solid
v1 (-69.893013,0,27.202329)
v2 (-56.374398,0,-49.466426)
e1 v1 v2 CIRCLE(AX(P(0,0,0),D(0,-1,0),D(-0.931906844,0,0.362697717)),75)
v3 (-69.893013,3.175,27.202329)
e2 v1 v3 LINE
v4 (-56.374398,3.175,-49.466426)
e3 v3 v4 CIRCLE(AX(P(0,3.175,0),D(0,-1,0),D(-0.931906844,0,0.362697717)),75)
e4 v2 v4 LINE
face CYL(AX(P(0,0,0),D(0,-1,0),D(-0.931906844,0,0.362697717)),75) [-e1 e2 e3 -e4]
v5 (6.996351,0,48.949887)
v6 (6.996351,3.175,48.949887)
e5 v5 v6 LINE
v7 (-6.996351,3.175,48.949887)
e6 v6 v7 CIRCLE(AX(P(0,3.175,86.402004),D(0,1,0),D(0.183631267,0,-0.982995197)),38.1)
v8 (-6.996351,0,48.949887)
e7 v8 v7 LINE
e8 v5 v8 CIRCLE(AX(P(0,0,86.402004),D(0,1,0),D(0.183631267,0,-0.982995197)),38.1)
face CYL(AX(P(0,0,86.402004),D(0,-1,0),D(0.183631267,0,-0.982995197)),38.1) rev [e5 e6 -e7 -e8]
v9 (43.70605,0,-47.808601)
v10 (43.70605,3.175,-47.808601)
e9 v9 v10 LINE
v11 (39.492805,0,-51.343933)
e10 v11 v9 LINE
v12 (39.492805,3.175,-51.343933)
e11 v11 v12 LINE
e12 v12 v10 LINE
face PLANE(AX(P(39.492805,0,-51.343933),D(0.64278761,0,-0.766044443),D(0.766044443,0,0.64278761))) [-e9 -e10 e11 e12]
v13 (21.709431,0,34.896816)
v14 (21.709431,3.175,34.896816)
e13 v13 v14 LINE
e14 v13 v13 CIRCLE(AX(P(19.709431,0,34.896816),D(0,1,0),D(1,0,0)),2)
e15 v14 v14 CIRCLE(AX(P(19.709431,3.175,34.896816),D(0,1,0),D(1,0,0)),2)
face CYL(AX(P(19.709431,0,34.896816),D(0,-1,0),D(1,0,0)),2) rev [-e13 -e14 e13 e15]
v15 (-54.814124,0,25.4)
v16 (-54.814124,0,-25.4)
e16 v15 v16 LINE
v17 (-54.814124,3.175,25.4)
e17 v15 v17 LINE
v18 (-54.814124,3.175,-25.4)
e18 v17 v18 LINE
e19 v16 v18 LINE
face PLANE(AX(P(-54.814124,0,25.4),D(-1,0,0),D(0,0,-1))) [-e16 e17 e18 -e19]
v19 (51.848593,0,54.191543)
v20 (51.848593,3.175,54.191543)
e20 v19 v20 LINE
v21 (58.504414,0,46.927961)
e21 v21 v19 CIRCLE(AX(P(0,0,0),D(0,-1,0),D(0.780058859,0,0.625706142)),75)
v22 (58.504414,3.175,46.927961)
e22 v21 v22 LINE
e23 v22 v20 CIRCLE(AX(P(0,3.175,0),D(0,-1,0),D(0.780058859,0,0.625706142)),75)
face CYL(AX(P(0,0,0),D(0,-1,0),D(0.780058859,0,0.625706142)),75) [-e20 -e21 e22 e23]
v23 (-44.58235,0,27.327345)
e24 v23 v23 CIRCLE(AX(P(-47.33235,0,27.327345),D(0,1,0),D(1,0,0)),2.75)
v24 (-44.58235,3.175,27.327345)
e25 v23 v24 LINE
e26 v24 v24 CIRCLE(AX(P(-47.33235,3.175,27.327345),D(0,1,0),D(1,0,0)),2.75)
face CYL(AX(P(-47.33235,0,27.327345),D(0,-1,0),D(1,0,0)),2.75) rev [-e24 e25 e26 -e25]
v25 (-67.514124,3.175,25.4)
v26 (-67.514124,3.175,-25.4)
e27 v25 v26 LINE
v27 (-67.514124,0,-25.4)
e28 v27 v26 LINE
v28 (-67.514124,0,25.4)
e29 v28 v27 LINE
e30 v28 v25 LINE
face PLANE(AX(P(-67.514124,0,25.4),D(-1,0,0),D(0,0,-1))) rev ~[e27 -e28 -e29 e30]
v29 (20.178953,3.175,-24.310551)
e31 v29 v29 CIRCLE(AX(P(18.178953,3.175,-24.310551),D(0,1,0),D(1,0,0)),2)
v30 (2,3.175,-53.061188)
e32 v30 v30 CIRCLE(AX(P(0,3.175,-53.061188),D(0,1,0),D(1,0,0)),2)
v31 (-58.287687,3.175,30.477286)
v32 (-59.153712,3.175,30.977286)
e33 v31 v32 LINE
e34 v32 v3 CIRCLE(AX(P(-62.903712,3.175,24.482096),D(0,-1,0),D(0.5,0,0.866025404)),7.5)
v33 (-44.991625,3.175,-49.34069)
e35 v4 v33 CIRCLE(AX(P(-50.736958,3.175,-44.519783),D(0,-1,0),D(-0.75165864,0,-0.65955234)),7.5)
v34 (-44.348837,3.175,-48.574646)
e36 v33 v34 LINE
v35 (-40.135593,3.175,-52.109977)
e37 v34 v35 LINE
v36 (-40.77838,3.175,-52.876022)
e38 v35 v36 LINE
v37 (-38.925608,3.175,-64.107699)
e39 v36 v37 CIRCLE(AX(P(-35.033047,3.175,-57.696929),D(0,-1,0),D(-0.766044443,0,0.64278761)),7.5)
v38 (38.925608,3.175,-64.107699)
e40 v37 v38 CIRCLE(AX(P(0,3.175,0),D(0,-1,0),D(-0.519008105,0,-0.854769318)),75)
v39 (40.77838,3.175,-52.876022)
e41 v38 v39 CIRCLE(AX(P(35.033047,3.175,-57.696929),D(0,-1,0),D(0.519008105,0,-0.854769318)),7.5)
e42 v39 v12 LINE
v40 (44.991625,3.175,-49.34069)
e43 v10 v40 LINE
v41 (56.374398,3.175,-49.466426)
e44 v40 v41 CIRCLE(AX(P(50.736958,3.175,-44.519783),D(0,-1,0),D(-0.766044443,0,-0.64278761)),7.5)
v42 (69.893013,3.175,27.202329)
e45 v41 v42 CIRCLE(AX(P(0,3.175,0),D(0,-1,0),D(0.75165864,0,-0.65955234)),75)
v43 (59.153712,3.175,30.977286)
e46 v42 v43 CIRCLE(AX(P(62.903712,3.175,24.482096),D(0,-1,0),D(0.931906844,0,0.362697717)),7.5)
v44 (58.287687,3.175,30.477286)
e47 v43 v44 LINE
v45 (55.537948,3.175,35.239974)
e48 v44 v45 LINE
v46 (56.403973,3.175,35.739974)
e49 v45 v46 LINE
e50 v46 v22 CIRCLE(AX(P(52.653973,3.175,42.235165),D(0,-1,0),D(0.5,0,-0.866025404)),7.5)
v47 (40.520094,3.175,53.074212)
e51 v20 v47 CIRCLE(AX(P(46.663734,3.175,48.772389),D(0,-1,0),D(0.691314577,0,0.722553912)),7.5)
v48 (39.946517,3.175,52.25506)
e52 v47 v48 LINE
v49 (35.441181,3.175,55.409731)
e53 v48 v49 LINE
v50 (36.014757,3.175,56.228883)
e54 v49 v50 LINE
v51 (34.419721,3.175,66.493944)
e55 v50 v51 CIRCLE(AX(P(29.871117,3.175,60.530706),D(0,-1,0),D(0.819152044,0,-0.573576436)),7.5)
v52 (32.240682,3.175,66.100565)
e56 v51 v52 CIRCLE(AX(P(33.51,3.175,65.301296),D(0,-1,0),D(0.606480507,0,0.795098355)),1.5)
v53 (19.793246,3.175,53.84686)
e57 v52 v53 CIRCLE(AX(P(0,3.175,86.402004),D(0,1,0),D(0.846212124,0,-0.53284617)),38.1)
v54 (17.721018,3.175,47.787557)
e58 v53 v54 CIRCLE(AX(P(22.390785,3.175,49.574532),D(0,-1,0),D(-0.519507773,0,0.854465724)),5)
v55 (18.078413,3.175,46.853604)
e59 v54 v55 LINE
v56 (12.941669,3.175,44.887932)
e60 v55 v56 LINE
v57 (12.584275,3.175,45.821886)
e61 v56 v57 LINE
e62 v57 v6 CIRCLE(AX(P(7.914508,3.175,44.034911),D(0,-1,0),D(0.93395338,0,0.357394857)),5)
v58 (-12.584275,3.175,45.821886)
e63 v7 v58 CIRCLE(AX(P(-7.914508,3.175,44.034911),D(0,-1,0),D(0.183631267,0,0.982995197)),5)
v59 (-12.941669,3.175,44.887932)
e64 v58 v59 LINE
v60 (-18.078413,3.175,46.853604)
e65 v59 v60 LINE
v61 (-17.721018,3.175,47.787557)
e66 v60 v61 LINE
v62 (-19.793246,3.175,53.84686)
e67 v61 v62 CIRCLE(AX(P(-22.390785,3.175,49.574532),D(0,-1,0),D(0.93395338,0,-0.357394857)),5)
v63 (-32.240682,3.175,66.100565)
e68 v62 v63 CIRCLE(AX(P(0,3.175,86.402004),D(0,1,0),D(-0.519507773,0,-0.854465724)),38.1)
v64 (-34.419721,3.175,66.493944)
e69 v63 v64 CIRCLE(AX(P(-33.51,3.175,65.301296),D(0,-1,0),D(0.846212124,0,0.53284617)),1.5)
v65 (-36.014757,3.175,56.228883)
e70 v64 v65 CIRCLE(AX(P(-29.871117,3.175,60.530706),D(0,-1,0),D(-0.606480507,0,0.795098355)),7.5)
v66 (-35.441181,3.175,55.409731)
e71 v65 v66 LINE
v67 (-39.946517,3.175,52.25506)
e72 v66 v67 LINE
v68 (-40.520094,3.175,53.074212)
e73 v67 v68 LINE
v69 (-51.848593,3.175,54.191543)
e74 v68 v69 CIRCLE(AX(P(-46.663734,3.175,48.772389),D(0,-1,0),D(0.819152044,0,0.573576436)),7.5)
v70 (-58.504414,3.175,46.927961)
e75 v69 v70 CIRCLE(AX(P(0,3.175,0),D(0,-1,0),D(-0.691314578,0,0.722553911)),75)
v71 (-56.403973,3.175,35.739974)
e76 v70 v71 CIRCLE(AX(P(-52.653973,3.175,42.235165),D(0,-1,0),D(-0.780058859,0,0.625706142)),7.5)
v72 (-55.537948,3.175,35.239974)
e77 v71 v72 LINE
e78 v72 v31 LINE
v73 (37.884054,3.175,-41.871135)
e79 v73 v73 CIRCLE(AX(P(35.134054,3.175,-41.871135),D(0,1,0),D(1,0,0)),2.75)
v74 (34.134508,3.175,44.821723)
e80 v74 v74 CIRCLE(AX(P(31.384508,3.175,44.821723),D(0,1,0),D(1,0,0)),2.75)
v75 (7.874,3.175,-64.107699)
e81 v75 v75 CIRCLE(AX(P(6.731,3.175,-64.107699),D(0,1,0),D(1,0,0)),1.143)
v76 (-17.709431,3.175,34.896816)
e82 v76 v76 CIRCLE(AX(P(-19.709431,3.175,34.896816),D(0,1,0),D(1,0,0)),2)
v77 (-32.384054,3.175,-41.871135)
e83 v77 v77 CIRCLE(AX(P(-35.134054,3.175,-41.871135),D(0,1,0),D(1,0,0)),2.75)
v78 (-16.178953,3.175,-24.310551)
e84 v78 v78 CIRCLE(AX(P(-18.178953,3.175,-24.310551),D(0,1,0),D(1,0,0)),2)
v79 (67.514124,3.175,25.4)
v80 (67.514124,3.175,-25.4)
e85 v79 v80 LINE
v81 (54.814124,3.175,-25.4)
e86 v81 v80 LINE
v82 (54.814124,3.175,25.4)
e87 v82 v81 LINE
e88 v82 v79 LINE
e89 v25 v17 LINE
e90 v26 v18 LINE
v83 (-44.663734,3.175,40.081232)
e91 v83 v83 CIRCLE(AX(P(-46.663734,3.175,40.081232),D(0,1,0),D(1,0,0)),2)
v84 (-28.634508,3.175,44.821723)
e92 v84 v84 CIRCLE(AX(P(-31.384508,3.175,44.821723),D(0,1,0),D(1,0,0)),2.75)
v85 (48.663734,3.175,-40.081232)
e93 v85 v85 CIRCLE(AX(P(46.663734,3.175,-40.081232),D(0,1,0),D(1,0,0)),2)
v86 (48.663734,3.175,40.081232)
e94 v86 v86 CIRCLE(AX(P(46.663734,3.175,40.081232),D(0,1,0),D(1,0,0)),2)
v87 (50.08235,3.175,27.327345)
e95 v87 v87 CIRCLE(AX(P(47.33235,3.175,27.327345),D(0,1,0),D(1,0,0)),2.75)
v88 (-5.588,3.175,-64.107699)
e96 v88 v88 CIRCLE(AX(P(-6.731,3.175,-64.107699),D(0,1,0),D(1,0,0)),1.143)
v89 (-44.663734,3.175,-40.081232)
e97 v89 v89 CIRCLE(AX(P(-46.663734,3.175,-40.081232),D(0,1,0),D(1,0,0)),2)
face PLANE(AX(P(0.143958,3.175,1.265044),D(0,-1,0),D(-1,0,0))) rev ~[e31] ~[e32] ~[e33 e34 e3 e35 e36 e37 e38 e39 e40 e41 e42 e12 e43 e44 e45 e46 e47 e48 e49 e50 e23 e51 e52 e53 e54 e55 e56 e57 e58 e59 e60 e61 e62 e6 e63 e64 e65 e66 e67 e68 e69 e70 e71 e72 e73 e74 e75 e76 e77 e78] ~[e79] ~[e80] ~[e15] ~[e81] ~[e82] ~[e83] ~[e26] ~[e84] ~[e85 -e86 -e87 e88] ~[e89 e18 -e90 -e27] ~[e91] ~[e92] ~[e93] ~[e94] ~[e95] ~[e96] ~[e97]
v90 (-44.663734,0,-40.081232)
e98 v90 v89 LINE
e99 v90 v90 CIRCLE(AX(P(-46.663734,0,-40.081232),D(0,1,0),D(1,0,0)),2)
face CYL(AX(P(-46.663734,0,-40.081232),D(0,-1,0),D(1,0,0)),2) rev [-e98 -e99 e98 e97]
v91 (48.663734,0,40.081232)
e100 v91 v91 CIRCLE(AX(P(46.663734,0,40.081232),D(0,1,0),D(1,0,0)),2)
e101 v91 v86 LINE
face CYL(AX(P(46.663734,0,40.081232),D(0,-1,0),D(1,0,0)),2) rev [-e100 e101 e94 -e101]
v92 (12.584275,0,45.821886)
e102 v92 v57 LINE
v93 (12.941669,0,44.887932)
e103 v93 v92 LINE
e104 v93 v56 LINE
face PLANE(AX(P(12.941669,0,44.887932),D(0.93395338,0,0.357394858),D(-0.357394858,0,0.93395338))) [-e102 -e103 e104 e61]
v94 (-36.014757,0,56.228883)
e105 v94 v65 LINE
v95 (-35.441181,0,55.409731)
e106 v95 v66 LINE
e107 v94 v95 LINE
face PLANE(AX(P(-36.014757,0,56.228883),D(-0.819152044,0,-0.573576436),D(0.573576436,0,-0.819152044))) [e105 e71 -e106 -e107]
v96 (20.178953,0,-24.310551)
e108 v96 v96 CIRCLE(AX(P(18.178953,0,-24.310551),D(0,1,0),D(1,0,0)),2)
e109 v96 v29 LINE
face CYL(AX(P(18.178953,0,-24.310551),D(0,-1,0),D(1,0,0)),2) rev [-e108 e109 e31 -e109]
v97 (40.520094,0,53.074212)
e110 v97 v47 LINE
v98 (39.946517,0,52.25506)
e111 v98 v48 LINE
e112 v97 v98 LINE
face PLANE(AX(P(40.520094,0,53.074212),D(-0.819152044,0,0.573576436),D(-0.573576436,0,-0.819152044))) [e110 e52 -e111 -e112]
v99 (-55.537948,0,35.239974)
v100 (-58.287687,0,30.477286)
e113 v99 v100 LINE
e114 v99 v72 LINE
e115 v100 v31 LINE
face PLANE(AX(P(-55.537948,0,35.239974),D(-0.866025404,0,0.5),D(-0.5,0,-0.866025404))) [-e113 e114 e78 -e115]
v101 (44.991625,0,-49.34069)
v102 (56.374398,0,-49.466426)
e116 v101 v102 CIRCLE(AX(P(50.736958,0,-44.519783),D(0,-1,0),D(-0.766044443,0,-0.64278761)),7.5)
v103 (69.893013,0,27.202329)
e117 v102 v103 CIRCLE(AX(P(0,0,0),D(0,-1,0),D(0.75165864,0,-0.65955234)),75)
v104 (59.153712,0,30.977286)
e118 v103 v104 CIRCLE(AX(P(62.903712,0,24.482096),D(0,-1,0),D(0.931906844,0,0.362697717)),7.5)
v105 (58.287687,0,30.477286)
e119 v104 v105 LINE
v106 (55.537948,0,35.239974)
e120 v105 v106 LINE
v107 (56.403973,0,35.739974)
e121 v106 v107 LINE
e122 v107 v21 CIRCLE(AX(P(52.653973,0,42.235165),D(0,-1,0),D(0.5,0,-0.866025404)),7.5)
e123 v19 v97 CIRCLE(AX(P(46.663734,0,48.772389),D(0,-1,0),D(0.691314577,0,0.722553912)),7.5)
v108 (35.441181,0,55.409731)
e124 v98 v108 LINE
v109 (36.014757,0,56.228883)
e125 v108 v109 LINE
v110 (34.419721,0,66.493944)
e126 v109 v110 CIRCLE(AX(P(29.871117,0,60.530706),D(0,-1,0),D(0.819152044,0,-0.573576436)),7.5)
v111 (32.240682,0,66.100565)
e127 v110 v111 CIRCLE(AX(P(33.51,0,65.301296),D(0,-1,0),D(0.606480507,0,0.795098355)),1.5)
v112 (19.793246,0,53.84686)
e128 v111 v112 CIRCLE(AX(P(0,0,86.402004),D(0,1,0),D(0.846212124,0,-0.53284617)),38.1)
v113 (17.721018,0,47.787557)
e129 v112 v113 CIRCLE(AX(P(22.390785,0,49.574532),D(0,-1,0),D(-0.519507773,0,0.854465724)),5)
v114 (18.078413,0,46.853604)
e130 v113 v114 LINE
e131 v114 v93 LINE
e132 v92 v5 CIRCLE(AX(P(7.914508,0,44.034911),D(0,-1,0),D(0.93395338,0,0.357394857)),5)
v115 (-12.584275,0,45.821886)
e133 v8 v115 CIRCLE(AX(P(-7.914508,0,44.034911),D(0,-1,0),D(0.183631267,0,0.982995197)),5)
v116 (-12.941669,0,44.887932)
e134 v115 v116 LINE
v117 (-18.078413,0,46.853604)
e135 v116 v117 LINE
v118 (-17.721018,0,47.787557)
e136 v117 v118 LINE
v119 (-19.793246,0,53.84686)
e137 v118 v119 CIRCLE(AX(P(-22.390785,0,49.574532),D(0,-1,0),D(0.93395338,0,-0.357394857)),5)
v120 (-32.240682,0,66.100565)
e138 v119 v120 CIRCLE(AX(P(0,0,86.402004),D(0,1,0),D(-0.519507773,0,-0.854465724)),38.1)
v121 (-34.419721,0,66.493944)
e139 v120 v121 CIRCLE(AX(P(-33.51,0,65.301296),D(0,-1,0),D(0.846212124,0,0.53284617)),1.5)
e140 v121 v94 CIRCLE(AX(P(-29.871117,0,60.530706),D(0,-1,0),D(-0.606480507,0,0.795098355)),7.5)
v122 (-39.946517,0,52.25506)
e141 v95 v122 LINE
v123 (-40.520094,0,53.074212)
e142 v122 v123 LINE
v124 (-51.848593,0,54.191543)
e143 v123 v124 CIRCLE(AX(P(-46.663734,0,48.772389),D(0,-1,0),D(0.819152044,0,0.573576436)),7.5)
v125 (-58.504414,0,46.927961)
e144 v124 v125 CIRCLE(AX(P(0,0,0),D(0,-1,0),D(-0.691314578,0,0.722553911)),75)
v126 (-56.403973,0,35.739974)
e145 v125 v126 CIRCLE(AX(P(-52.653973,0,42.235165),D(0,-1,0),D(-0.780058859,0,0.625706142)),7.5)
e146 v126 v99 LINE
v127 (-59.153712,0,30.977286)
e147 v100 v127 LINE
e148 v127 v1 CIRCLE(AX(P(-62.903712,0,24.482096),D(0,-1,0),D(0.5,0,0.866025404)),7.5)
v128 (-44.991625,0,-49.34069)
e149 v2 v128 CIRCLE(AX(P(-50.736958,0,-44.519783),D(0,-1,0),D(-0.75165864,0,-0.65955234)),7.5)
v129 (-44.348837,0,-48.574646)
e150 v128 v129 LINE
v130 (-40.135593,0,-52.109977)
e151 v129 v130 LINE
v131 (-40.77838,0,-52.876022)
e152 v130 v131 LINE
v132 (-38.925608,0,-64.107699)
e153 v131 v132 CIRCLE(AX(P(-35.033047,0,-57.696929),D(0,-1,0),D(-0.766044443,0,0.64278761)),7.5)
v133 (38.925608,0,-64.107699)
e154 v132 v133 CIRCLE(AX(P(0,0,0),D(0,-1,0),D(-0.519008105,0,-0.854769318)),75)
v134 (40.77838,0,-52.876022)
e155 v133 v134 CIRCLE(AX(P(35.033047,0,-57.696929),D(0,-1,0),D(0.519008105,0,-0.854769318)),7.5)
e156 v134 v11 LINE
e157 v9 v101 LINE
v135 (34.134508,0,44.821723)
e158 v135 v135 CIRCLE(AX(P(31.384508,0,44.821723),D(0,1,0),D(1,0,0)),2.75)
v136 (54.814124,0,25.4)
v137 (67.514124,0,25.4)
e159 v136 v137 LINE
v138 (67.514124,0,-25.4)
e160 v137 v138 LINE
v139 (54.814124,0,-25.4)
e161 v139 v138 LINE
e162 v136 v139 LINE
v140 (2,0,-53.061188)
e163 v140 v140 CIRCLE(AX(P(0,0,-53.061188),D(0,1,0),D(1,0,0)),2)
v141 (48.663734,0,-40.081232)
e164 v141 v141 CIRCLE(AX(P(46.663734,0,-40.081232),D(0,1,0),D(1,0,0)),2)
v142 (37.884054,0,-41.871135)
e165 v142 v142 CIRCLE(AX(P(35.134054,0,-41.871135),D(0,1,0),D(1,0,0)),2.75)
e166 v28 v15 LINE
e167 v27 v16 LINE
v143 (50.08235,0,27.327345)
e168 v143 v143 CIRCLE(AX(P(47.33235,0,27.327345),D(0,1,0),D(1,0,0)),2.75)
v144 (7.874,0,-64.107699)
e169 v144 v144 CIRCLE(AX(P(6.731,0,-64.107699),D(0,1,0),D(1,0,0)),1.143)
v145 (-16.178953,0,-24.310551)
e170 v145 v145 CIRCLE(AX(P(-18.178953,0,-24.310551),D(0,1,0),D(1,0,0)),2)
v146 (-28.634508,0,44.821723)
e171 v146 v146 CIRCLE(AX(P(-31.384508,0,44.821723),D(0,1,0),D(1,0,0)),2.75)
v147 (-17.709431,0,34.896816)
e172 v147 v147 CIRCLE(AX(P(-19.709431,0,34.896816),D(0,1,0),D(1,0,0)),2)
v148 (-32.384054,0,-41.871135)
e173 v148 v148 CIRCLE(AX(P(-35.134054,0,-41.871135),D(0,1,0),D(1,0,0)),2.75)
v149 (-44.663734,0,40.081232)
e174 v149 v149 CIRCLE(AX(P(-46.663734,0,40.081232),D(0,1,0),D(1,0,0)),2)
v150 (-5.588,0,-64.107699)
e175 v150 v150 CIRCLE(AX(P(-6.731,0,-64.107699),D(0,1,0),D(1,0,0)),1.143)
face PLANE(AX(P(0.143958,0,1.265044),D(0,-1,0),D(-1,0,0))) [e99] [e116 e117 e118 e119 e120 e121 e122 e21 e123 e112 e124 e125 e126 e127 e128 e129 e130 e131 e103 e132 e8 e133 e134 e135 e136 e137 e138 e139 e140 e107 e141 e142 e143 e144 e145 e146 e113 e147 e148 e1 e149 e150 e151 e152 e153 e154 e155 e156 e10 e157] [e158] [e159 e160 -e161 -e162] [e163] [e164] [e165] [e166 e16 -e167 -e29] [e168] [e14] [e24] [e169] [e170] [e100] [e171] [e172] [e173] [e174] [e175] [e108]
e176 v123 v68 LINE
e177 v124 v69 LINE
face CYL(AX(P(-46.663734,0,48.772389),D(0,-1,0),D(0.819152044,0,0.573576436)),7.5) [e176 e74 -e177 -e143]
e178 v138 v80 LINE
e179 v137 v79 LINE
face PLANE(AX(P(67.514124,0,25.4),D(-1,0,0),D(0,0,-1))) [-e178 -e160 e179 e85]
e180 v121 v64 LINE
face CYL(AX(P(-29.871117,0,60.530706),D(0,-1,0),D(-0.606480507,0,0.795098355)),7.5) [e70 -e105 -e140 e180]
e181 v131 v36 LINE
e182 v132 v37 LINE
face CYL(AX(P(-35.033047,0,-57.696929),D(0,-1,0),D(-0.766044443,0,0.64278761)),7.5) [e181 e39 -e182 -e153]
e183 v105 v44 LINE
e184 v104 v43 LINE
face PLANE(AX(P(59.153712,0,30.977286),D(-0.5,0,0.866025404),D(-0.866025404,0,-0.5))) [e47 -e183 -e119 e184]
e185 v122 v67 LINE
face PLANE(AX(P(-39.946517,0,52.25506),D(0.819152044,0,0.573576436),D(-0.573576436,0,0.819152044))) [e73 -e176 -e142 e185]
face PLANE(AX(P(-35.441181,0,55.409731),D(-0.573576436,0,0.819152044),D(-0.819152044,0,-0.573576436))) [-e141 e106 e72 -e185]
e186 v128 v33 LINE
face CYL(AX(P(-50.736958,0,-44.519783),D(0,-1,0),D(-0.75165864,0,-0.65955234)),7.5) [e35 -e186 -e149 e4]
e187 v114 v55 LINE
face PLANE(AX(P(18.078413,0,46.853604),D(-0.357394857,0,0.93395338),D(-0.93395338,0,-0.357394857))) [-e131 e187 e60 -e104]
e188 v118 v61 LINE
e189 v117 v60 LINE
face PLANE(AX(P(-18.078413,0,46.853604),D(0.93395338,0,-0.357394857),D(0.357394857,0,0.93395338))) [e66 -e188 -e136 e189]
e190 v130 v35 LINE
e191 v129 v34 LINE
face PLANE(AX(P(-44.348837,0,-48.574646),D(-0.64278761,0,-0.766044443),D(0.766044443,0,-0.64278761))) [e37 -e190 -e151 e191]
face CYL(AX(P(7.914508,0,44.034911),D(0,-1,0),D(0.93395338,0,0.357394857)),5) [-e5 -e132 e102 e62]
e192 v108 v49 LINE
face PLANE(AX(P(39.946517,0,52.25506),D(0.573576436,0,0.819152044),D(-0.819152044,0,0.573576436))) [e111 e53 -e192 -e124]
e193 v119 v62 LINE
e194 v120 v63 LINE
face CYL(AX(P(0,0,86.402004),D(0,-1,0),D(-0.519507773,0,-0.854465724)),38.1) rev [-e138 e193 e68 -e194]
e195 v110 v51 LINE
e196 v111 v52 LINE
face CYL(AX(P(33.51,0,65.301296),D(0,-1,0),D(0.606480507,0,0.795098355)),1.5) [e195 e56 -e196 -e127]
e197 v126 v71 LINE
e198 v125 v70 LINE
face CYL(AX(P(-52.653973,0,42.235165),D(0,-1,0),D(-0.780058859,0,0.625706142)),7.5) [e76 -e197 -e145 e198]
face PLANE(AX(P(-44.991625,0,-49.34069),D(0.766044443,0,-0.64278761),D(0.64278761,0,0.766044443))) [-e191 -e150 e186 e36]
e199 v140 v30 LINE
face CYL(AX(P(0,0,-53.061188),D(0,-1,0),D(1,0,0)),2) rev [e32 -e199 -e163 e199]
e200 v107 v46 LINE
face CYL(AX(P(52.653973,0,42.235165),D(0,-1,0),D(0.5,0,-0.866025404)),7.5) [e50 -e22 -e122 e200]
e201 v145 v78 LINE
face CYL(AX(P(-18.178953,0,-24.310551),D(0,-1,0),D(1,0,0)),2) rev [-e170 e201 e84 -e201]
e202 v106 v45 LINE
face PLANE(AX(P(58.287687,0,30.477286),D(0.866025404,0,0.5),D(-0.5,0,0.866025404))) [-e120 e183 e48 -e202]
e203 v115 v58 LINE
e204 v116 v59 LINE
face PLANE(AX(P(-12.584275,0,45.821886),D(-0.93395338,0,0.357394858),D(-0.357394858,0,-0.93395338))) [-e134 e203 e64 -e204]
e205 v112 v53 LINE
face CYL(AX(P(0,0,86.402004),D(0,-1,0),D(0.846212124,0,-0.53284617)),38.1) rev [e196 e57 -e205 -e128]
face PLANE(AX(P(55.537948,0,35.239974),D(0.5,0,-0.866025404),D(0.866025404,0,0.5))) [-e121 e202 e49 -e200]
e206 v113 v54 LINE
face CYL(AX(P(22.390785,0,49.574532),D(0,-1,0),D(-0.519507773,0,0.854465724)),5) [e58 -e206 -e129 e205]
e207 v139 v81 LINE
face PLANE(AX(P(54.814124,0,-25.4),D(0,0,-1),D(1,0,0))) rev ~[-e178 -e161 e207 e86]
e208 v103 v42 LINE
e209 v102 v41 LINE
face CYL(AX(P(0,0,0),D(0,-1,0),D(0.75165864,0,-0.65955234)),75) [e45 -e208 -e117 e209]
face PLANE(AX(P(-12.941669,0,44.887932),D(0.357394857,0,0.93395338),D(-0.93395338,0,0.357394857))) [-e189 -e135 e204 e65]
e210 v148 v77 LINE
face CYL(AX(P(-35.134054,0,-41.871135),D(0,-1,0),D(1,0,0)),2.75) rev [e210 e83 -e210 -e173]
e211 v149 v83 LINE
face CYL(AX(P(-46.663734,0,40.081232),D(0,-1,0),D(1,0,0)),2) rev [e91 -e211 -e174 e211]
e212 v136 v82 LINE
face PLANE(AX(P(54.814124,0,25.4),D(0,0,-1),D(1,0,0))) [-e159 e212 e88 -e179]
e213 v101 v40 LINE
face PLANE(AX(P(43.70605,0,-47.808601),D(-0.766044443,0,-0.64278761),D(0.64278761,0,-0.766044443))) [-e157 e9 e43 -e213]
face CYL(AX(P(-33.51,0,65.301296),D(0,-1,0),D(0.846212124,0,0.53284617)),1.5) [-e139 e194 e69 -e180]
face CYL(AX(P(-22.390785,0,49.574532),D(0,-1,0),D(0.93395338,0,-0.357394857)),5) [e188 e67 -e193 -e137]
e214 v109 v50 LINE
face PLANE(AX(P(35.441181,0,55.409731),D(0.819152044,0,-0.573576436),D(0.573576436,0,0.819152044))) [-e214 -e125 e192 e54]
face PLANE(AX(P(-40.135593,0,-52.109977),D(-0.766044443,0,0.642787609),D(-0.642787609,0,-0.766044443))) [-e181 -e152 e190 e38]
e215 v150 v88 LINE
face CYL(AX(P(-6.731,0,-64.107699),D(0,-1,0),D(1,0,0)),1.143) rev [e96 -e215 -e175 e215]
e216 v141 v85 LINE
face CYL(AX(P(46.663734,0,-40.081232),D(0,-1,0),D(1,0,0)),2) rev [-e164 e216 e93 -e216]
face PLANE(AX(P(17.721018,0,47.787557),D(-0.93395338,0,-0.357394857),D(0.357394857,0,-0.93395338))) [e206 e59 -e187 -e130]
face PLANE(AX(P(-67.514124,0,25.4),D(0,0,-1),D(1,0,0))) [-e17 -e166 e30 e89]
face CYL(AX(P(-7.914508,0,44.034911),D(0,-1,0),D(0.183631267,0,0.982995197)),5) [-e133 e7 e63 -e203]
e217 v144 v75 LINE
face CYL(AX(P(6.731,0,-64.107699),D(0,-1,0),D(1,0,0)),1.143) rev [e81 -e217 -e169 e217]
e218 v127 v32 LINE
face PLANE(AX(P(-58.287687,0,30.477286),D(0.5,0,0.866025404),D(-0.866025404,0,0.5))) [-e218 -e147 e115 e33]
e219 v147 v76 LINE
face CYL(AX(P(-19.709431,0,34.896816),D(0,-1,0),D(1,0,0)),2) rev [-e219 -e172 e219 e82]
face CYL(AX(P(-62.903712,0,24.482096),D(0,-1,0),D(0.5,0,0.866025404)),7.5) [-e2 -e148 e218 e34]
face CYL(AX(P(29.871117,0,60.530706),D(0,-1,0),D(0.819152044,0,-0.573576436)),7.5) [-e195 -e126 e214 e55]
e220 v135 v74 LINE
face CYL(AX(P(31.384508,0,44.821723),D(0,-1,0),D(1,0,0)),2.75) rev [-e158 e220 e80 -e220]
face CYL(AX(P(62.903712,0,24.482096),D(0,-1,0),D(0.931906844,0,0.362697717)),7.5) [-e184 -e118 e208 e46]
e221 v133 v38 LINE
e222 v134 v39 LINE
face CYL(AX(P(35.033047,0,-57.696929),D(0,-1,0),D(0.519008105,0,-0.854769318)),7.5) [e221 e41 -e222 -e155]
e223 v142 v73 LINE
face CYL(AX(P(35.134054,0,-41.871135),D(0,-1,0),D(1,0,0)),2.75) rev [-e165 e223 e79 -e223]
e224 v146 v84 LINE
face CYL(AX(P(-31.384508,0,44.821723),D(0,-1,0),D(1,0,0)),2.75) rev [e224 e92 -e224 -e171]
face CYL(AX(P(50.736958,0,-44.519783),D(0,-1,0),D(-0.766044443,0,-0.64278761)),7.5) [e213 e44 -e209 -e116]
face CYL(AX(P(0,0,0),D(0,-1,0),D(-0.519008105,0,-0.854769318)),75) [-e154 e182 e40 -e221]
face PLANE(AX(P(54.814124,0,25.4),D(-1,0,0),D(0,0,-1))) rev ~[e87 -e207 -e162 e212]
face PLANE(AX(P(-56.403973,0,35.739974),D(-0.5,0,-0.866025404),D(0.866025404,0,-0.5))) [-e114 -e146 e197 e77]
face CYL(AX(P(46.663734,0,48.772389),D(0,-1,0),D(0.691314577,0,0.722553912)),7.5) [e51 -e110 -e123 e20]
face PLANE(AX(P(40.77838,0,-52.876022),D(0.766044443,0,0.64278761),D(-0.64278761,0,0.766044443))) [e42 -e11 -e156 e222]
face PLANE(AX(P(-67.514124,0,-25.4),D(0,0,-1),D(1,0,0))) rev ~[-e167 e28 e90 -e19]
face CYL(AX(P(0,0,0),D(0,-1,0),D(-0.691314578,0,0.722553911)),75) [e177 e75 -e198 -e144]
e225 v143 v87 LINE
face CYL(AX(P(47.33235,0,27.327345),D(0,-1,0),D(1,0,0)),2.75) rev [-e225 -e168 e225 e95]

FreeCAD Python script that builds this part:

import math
import FreeCAD as App
import Part
import Sketcher

V = App.Vector
Q = App.Units.Quantity

doc = App.newDocument("Part")
body = doc.addObject("PartDesign::Body", "Body")

sketch1 = body.newObject("Sketcher::SketchObject", "Sketch")
sketch1.AttachmentSupport = (doc.getObject("XZ_Plane"), [""])
sketch1.MapMode = "FlatFace"
sketch1.addGeometry(Part.LineSegment(V(-35.4, 55.4, 0), V(-36, 56.2, 0)), False)
sketch1.addGeometry(Part.ArcOfCircle(Part.Circle(V(-29.9, 60.5, 0), V(0, 0, 1), 7.5), math.radians(127), math.radians(215)), False)
sketch1.addGeometry(Part.ArcOfCircle(Part.Circle(V(-33.5, 65.3, 0), V(0, 0, 1), 1.5), math.radians(32), math.radians(127)), False)
sketch1.addGeometry(Part.ArcOfCircle(Part.Circle(V(0, 86.4, 0), V(0, 0, 1), 38.1), math.radians(-148), math.radians(-121)), False)
sketch1.addGeometry(Part.ArcOfCircle(Part.Circle(V(-22.4, 49.6, 0), V(0, 0, 1), 5), math.radians(-21), math.radians(59)), False)
sketch1.addGeometry(Part.LineSegment(V(-17.7, 47.8, 0), V(-18.1, 46.9, 0)), False)
sketch1.addGeometry(Part.LineSegment(V(-18.1, 46.9, 0), V(-12.9, 44.9, 0)), False)
sketch1.addGeometry(Part.LineSegment(V(-12.9, 44.9, 0), V(-12.6, 45.8, 0)), False)
sketch1.addGeometry(Part.ArcOfCircle(Part.Circle(V(-7.9, 44, 0), V(0, 0, 1), 5), math.radians(79), math.radians(159)), False)
sketch1.addGeometry(Part.ArcOfCircle(Part.Circle(V(0, 86.4, 0), V(0, 0, 1), 38.1), math.radians(-101), math.radians(-79)), False)
sketch1.addGeometry(Part.ArcOfCircle(Part.Circle(V(7.9, 44, 0), V(0, 0, 1), 5), math.radians(21), math.radians(101)), False)
sketch1.addGeometry(Part.LineSegment(V(12.6, 45.8, 0), V(12.9, 44.9, 0)), False)
sketch1.addGeometry(Part.LineSegment(V(12.9, 44.9, 0), V(18.1, 46.9, 0)), False)
sketch1.addGeometry(Part.LineSegment(V(18.1, 46.9, 0), V(17.7, 47.8, 0)), False)
sketch1.addGeometry(Part.ArcOfCircle(Part.Circle(V(22.4, 49.6, 0), V(0, 0, 1), 5), math.radians(121), math.radians(201)), False)
sketch1.addGeometry(Part.ArcOfCircle(Part.Circle(V(0, 86.4, 0), V(0, 0, 1), 38.1), math.radians(-59), math.radians(-32)), False)
sketch1.addGeometry(Part.ArcOfCircle(Part.Circle(V(33.5, 65.3, 0), V(0, 0, 1), 1.5), math.radians(53), math.radians(148)), False)
sketch1.addGeometry(Part.ArcOfCircle(Part.Circle(V(29.9, 60.5, 0), V(0, 0, 1), 7.5), math.radians(-35), math.radians(53)), False)
sketch1.addGeometry(Part.LineSegment(V(36, 56.2, 0), V(35.4, 55.4, 0)), False)
sketch1.addGeometry(Part.LineSegment(V(35.4, 55.4, 0), V(39.9, 52.3, 0)), False)
sketch1.addGeometry(Part.LineSegment(V(39.9, 52.3, 0), V(40.5, 53.1, 0)), False)
sketch1.addGeometry(Part.ArcOfCircle(Part.Circle(V(46.7, 48.8, 0), V(0, 0, 1), 7.5), math.radians(46), math.radians(145)), False)
sketch1.addGeometry(Part.ArcOfCircle(Part.Circle(V(0, 0, 0), V(0, 0, 1), 75), math.radians(38.73), math.radians(46.27)), False)
sketch1.addGeometry(Part.ArcOfCircle(Part.Circle(V(52.7, 42.2, 0), V(0, 0, 1), 7.5), math.radians(-60), math.radians(39)), False)
sketch1.addGeometry(Part.LineSegment(V(56.4, 35.7, 0), V(55.5, 35.2, 0)), False)
sketch1.addGeometry(Part.LineSegment(V(55.5, 35.2, 0), V(58.3, 30.5, 0)), False)
sketch1.addGeometry(Part.LineSegment(V(58.3, 30.5, 0), V(59.2, 31, 0)), False)
sketch1.addGeometry(Part.ArcOfCircle(Part.Circle(V(62.9, 24.5, 0), V(0, 0, 1), 7.5), math.radians(21), math.radians(120)), False)
sketch1.addGeometry(Part.ArcOfCircle(Part.Circle(V(0, 0, 0), V(0, 0, 1), 75), math.radians(-41), math.radians(21)), False)
sketch1.addGeometry(Part.ArcOfCircle(Part.Circle(V(50.7, -44.5, 0), V(0, 0, 1), 7.5), math.radians(-140), math.radians(-41)), False)
sketch1.addGeometry(Part.LineSegment(V(45, -49.3, 0), V(43.7, -47.8, 0)), False)
sketch1.addGeometry(Part.LineSegment(V(43.7, -47.8, 0), V(39.5, -51.3, 0)), False)
sketch1.addGeometry(Part.LineSegment(V(39.5, -51.3, 0), V(40.8, -52.9, 0)), False)
sketch1.addGeometry(Part.ArcOfCircle(Part.Circle(V(35, -57.7, 0), V(0, 0, 1), 7.5), math.radians(-59), math.radians(40)), False)
sketch1.addGeometry(Part.ArcOfCircle(Part.Circle(V(0, 0, 0), V(0, 0, 1), 75), math.radians(-121), math.radians(-59)), False)
sketch1.addGeometry(Part.ArcOfCircle(Part.Circle(V(-35, -57.7, 0), V(0, 0, 1), 7.5), math.radians(140), math.radians(239)), False)
sketch1.addGeometry(Part.LineSegment(V(-40.8, -52.9, 0), V(-40.1, -52.1, 0)), False)
sketch1.addGeometry(Part.LineSegment(V(-40.1, -52.1, 0), V(-44.3, -48.6, 0)), False)
sketch1.addGeometry(Part.LineSegment(V(-44.3, -48.6, 0), V(-45, -49.3, 0)), False)
sketch1.addGeometry(Part.ArcOfCircle(Part.Circle(V(-50.7, -44.5, 0), V(0, 0, 1), 7.5), math.radians(-139), math.radians(-40)), False)
sketch1.addGeometry(Part.ArcOfCircle(Part.Circle(V(0, 0, 0), V(0, 0, 1), 75), math.radians(159), math.radians(221)), False)
sketch1.addGeometry(Part.ArcOfCircle(Part.Circle(V(-62.9, 24.5, 0), V(0, 0, 1), 7.5), math.radians(60), math.radians(159)), False)
sketch1.addGeometry(Part.LineSegment(V(-59.2, 31, 0), V(-58.3, 30.5, 0)), False)
sketch1.addGeometry(Part.LineSegment(V(-58.3, 30.5, 0), V(-55.5, 35.2, 0)), False)
sketch1.addGeometry(Part.LineSegment(V(-55.5, 35.2, 0), V(-56.4, 35.7, 0)), False)
sketch1.addGeometry(Part.ArcOfCircle(Part.Circle(V(-52.7, 42.2, 0), V(0, 0, 1), 7.5), math.radians(141), math.radians(240)), False)
sketch1.addGeometry(Part.ArcOfCircle(Part.Circle(V(0, 0, 0), V(0, 0, 1), 75), math.radians(133.73), math.radians(141.27)), False)
sketch1.addGeometry(Part.ArcOfCircle(Part.Circle(V(-46.7, 48.8, 0), V(0, 0, 1), 7.5), math.radians(35), math.radians(134)), False)
sketch1.addGeometry(Part.LineSegment(V(-40.5, 53.1, 0), V(-39.9, 52.3, 0)), False)
sketch1.addGeometry(Part.LineSegment(V(-39.9, 52.3, 0), V(-35.4, 55.4, 0)), False)
sketch1.addGeometry(Part.Circle(V(46.7, 40.1, 0), V(0, 0, 1), 2), False)
sketch1.addGeometry(Part.Circle(V(47.3, 27.3, 0), V(0, 0, 1), 2.8), False)
sketch1.addGeometry(Part.Circle(V(31.4, 44.8, 0), V(0, 0, 1), 2.8), False)
sketch1.addGeometry(Part.Circle(V(19.7, 34.9, 0), V(0, 0, 1), 2), False)
sketch1.addGeometry(Part.LineSegment(V(54.8, 25.4, 0), V(54.8, -25.4, 0)), False)
sketch1.addGeometry(Part.LineSegment(V(54.8, -25.4, 0), V(67.5, -25.4, 0)), False)
sketch1.addGeometry(Part.LineSegment(V(67.5, -25.4, 0), V(67.5, 25.4, 0)), False)
sketch1.addGeometry(Part.LineSegment(V(67.5, 25.4, 0), V(54.8, 25.4, 0)), False)
sketch1.addGeometry(Part.Circle(V(-31.4, 44.8, 0), V(0, 0, 1), 2.8), False)
sketch1.addGeometry(Part.Circle(V(-19.7, 34.9, 0), V(0, 0, 1), 2), False)
sketch1.addGeometry(Part.Circle(V(-46.7, 40.1, 0), V(0, 0, 1), 2), False)
sketch1.addGeometry(Part.Circle(V(-47.3, 27.3, 0), V(0, 0, 1), 2.8), False)
sketch1.addGeometry(Part.LineSegment(V(-67.5, 25.4, 0), V(-67.5, -25.4, 0)), False)
sketch1.addGeometry(Part.LineSegment(V(-67.5, -25.4, 0), V(-54.8, -25.4, 0)), False)
sketch1.addGeometry(Part.LineSegment(V(-54.8, -25.4, 0), V(-54.8, 25.4, 0)), False)
sketch1.addGeometry(Part.LineSegment(V(-54.8, 25.4, 0), V(-67.5, 25.4, 0)), False)
sketch1.addGeometry(Part.Circle(V(18.2, -24.3, 0), V(0, 0, 1), 2), False)
sketch1.addGeometry(Part.Circle(V(46.7, -40.1, 0), V(0, 0, 1), 2), False)
sketch1.addGeometry(Part.Circle(V(35.1, -41.9, 0), V(0, 0, 1), 2.8), False)
sketch1.addGeometry(Part.Circle(V(6.7, -64.1, 0), V(0, 0, 1), 1.1), False)
sketch1.addGeometry(Part.Circle(V(-18.2, -24.3, 0), V(0, 0, 1), 2), False)
sketch1.addGeometry(Part.Circle(V(0, -53.1, 0), V(0, 0, 1), 2), False)
sketch1.addGeometry(Part.Circle(V(-6.7, -64.1, 0), V(0, 0, 1), 1.1), False)
sketch1.addGeometry(Part.Circle(V(-35.1, -41.9, 0), V(0, 0, 1), 2.8), False)
sketch1.addGeometry(Part.Circle(V(-46.7, -40.1, 0), V(0, 0, 1), 2), False)
sketch1.addConstraint(Sketcher.Constraint("Tangent", 0, 2, 1, 2))
sketch1.addConstraint(Sketcher.Constraint("Tangent", 1, 1, 2, 2))
sketch1.addConstraint(Sketcher.Constraint("Tangent", 2, 1, 3, 1))
sketch1.addConstraint(Sketcher.Constraint("Tangent", 3, 2, 4, 2))
sketch1.addConstraint(Sketcher.Constraint("Tangent", 4, 1, 5, 1))
sketch1.addConstraint(Sketcher.Constraint("Coincident", 5, 2, 6, 1))
sketch1.addConstraint(Sketcher.Constraint("Coincident", 6, 2, 7, 1))
sketch1.addConstraint(Sketcher.Constraint("Tangent", 7, 2, 8, 2))
sketch1.addConstraint(Sketcher.Constraint("Tangent", 8, 1, 9, 1))
sketch1.addConstraint(Sketcher.Constraint("Tangent", 9, 2, 10, 2))
sketch1.addConstraint(Sketcher.Constraint("Tangent", 10, 1, 11, 1))
sketch1.addConstraint(Sketcher.Constraint("Coincident", 11, 2, 12, 1))
sketch1.addConstraint(Sketcher.Constraint("Coincident", 12, 2, 13, 1))
sketch1.addConstraint(Sketcher.Constraint("Tangent", 13, 2, 14, 2))
sketch1.addConstraint(Sketcher.Constraint("Tangent", 14, 1, 15, 1))
sketch1.addConstraint(Sketcher.Constraint("Tangent", 15, 2, 16, 2))
sketch1.addConstraint(Sketcher.Constraint("Tangent", 16, 1, 17, 2))
sketch1.addConstraint(Sketcher.Constraint("Tangent", 17, 1, 18, 1))
sketch1.addConstraint(Sketcher.Constraint("Coincident", 18, 2, 19, 1))
sketch1.addConstraint(Sketcher.Constraint("Coincident", 19, 2, 20, 1))
sketch1.addConstraint(Sketcher.Constraint("Tangent", 20, 2, 21, 2))
sketch1.addConstraint(Sketcher.Constraint("Tangent", 21, 1, 22, 2))
sketch1.addConstraint(Sketcher.Constraint("Tangent", 22, 1, 23, 2))
sketch1.addConstraint(Sketcher.Constraint("Tangent", 23, 1, 24, 1))
sketch1.addConstraint(Sketcher.Constraint("Coincident", 24, 2, 25, 1))
sketch1.addConstraint(Sketcher.Constraint("Coincident", 25, 2, 26, 1))
sketch1.addConstraint(Sketcher.Constraint("Tangent", 26, 2, 27, 2))
sketch1.addConstraint(Sketcher.Constraint("Tangent", 27, 1, 28, 2))
sketch1.addConstraint(Sketcher.Constraint("Tangent", 28, 1, 29, 2))
sketch1.addConstraint(Sketcher.Constraint("Tangent", 29, 1, 30, 1))
sketch1.addConstraint(Sketcher.Constraint("Coincident", 30, 2, 31, 1))
sketch1.addConstraint(Sketcher.Constraint("Coincident", 31, 2, 32, 1))
sketch1.addConstraint(Sketcher.Constraint("Tangent", 32, 2, 33, 2))
sketch1.addConstraint(Sketcher.Constraint("Tangent", 33, 1, 34, 2))
sketch1.addConstraint(Sketcher.Constraint("Tangent", 34, 1, 35, 2))
sketch1.addConstraint(Sketcher.Constraint("Tangent", 35, 1, 36, 1))
sketch1.addConstraint(Sketcher.Constraint("Coincident", 36, 2, 37, 1))
sketch1.addConstraint(Sketcher.Constraint("Coincident", 37, 2, 38, 1))
sketch1.addConstraint(Sketcher.Constraint("Tangent", 38, 2, 39, 2))
sketch1.addConstraint(Sketcher.Constraint("Tangent", 39, 1, 40, 2))
sketch1.addConstraint(Sketcher.Constraint("Tangent", 40, 1, 41, 2))
sketch1.addConstraint(Sketcher.Constraint("Tangent", 41, 1, 42, 1))
sketch1.addConstraint(Sketcher.Constraint("Coincident", 42, 2, 43, 1))
sketch1.addConstraint(Sketcher.Constraint("Coincident", 43, 2, 44, 1))
sketch1.addConstraint(Sketcher.Constraint("Tangent", 44, 2, 45, 2))
sketch1.addConstraint(Sketcher.Constraint("Tangent", 45, 1, 46, 2))
sketch1.addConstraint(Sketcher.Constraint("Tangent", 46, 1, 47, 2))
sketch1.addConstraint(Sketcher.Constraint("Tangent", 47, 1, 48, 1))
sketch1.addConstraint(Sketcher.Constraint("Coincident", 48, 2, 49, 1))
sketch1.addConstraint(Sketcher.Constraint("Coincident", 49, 2, 0, 1))
sketch1.addConstraint(Sketcher.Constraint("Coincident", 54, 2, 55, 1))
sketch1.addConstraint(Sketcher.Constraint("Coincident", 55, 2, 56, 1))
sketch1.addConstraint(Sketcher.Constraint("Coincident", 56, 2, 57, 1))
sketch1.addConstraint(Sketcher.Constraint("Coincident", 57, 2, 54, 1))
sketch1.addConstraint(Sketcher.Constraint("Coincident", 62, 2, 63, 1))
sketch1.addConstraint(Sketcher.Constraint("Coincident", 63, 2, 64, 1))
sketch1.addConstraint(Sketcher.Constraint("Coincident", 64, 2, 65, 1))
sketch1.addConstraint(Sketcher.Constraint("Coincident", 65, 2, 62, 1))
sketch1.addConstraint(Sketcher.Constraint("Vertical", 54))
sketch1.addConstraint(Sketcher.Constraint("Horizontal", 55))
sketch1.addConstraint(Sketcher.Constraint("Vertical", 56))
sketch1.addConstraint(Sketcher.Constraint("Horizontal", 57))
sketch1.addConstraint(Sketcher.Constraint("Vertical", 62))
sketch1.addConstraint(Sketcher.Constraint("Horizontal", 63))
sketch1.addConstraint(Sketcher.Constraint("Vertical", 64))
sketch1.addConstraint(Sketcher.Constraint("Horizontal", 65))
sketch1.addConstraint(Sketcher.Constraint("Coincident", 22, 3, -1, 1))
sketch1.addConstraint(Sketcher.Constraint("Coincident", 28, 3, -1, 1))
sketch1.addConstraint(Sketcher.Constraint("Coincident", 34, 3, -1, 1))
sketch1.addConstraint(Sketcher.Constraint("Coincident", 40, 3, -1, 1))
sketch1.addConstraint(Sketcher.Constraint("Coincident", 46, 3, -1, 1))
sketch1.addConstraint(Sketcher.Constraint("Coincident", 9, 3, 3, 3))
sketch1.addConstraint(Sketcher.Constraint("Coincident", 15, 3, 3, 3))
sketch1.addConstraint(Sketcher.Constraint("Equal", 4, 8))
sketch1.addConstraint(Sketcher.Constraint("Equal", 3, 9))
sketch1.addConstraint(Sketcher.Constraint("Equal", 8, 10))
sketch1.addConstraint(Sketcher.Constraint("Equal", 10, 14))
sketch1.addConstraint(Sketcher.Constraint("Equal", 9, 15))
sketch1.addConstraint(Sketcher.Constraint("Equal", 2, 16))
sketch1.addConstraint(Sketcher.Constraint("Equal", 1, 17))
sketch1.addConstraint(Sketcher.Constraint("Equal", 17, 21))
sketch1.addConstraint(Sketcher.Constraint("Equal", 21, 23))
sketch1.addConstraint(Sketcher.Constraint("Equal", 23, 27))
sketch1.addConstraint(Sketcher.Constraint("Equal", 22, 28))
sketch1.addConstraint(Sketcher.Constraint("Equal", 27, 29))
sketch1.addConstraint(Sketcher.Constraint("Equal", 29, 33))
sketch1.addConstraint(Sketcher.Constraint("Equal", 28, 34))
sketch1.addConstraint(Sketcher.Constraint("Equal", 33, 35))
sketch1.addConstraint(Sketcher.Constraint("Equal", 35, 39))
sketch1.addConstraint(Sketcher.Constraint("Equal", 34, 40))
sketch1.addConstraint(Sketcher.Constraint("Equal", 39, 41))
sketch1.addConstraint(Sketcher.Constraint("Equal", 41, 45))
sketch1.addConstraint(Sketcher.Constraint("Equal", 40, 46))
sketch1.addConstraint(Sketcher.Constraint("Equal", 45, 47))
sketch1.addConstraint(Sketcher.Constraint("Equal", 51, 52))
sketch1.addConstraint(Sketcher.Constraint("Equal", 50, 53))
sketch1.addConstraint(Sketcher.Constraint("Equal", 52, 58))
sketch1.addConstraint(Sketcher.Constraint("Equal", 53, 59))
sketch1.addConstraint(Sketcher.Constraint("Equal", 59, 60))
sketch1.addConstraint(Sketcher.Constraint("Equal", 58, 61))
sketch1.addConstraint(Sketcher.Constraint("Equal", 60, 66))
sketch1.addConstraint(Sketcher.Constraint("Equal", 66, 67))
sketch1.addConstraint(Sketcher.Constraint("Equal", 61, 68))
sketch1.addConstraint(Sketcher.Constraint("Equal", 67, 70))
sketch1.addConstraint(Sketcher.Constraint("Equal", 70, 71))
sketch1.addConstraint(Sketcher.Constraint("Equal", 69, 72))
sketch1.addConstraint(Sketcher.Constraint("Equal", 68, 73))
sketch1.addConstraint(Sketcher.Constraint("Equal", 71, 74))
sketch1.addConstraint(Sketcher.Constraint("Symmetric", 60, 3, 67, 3, -1, 1))
sketch1.addConstraint(Sketcher.Constraint("Symmetric", 50, 3, 74, 3, -1, 1))
sketch1.addConstraint(Sketcher.Constraint("Symmetric", 56, 2, 62, 2, -1, 1))
sketch1.addConstraint(Sketcher.Constraint("Symmetric", 54, 2, 64, 2, -1, 1))
sketch1.addConstraint(Sketcher.Constraint("Symmetric", 8, 3, 10, 3, -2))
sketch1.addConstraint(Sketcher.Constraint("Symmetric", 1, 3, 17, 3, -2))
sketch1.addConstraint(Sketcher.Constraint("Symmetric", 52, 3, 58, 3, -2))
sketch1.addConstraint(Sketcher.Constraint("Symmetric", 53, 3, 59, 3, -2))
sketch1.addConstraint(Sketcher.Constraint("Symmetric", 50, 3, 60, 3, -2))
sketch1.addConstraint(Sketcher.Constraint("Symmetric", 51, 3, 61, 3, -2))
sketch1.addConstraint(Sketcher.Constraint("Symmetric", 66, 3, 70, 3, -2))
sketch1.addConstraint(Sketcher.Constraint("Symmetric", 69, 3, 72, 3, -2))
sketch1.addConstraint(Sketcher.Constraint("Symmetric", 68, 3, 73, 3, -2))
sketch1.addConstraint(Sketcher.Constraint("Symmetric", 6, 2, 11, 2, -2))
sketch1.addConstraint(Sketcher.Constraint("Symmetric", 5, 2, 12, 2, -2))
sketch1.addConstraint(Sketcher.Constraint("Symmetric", 32, 2, 35, 1, -2))
sketch1.addConstraint(Sketcher.Constraint("Symmetric", 29, 1, 38, 2, -2))
sketch1.addConstraint(Sketcher.Constraint("Symmetric", 26, 2, 41, 1, -2))
sketch1.addConstraint(Sketcher.Constraint("Symmetric", 24, 2, 43, 2, -2))
sketch1.addConstraint(Sketcher.Constraint("Symmetric", 20, 2, 47, 1, -2))
sketch1.addConstraint(Sketcher.Constraint("Symmetric", 18, 2, 49, 2, -2))
sketch1.addConstraint(Sketcher.Constraint("PointOnObject", 71, 3, -2))
sketch1.addConstraint(Sketcher.Constraint("Perpendicular", 5, 6))
sketch1.addConstraint(Sketcher.Constraint("Perpendicular", 6, 7))
sketch1.addConstraint(Sketcher.Constraint("Perpendicular", 12, 13))
sketch1.addConstraint(Sketcher.Constraint("Perpendicular", 18, 19))
sketch1.addConstraint(Sketcher.Constraint("Perpendicular", 19, 20))
sketch1.addConstraint(Sketcher.Constraint("Perpendicular", 24, 25))
sketch1.addConstraint(Sketcher.Constraint("Perpendicular", 25, 26))
sketch1.addConstraint(Sketcher.Constraint("Perpendicular", 30, 31))
sketch1.addConstraint(Sketcher.Constraint("Perpendicular", 31, 32))
sketch1.addConstraint(Sketcher.Constraint("Perpendicular", 36, 37))
sketch1.addConstraint(Sketcher.Constraint("Perpendicular", 42, 43))
sketch1.addConstraint(Sketcher.Constraint("Perpendicular", 43, 44))
sketch1.addConstraint(Sketcher.Constraint("Perpendicular", 48, 49))
sketch1.addConstraint(Sketcher.Constraint("Horizontal", 72, 3, 33, 1))
sketch1.addConstraint(Sketcher.Constraint("Horizontal", 55, 2, 62, 2))
sketch1.addConstraint(Sketcher.Constraint("Vertical", 21, 3, 50, 3))
sketch1.addConstraint(Sketcher.Constraint("Equal", 0, 5))
sketch1.addConstraint(Sketcher.Constraint("Equal", 5, 7))
sketch1.addConstraint(Sketcher.Constraint("Equal", 12, 19))
sketch1.addConstraint(Sketcher.Constraint("Equal", 18, 20))
sketch1.addConstraint(Sketcher.Constraint("Equal", 20, 24))
sketch1.addConstraint(Sketcher.Constraint("Equal", 24, 26))
sketch1.addConstraint(Sketcher.Constraint("Equal", 19, 31))
sketch1.addConstraint(Sketcher.Constraint("Equal", 30, 32))
sketch1.addConstraint(Sketcher.Constraint("Equal", 26, 36))
sketch1.addConstraint(Sketcher.Constraint("Diameter", 50, 4.0))
sketch1.addConstraint(Sketcher.Constraint("Radius", 4, 5.0))
sketch1.addConstraint(Sketcher.Constraint("Radius", 22, 75.0))
sketch1.addConstraint(Sketcher.Constraint("Diameter", 51, 5.5))
sketch1.addConstraint(Sketcher.Constraint("Radius", 1, 7.5))
sketch1.addConstraint(Sketcher.Constraint("Radius", 2, 1.5))
sketch1.addConstraint(Sketcher.Constraint("Radius", 3, 38.1))
sketch1.addConstraint(Sketcher.Constraint("Angle", 0, Q("125 deg")))
sketch1.addConstraint(Sketcher.Constraint("Angle", 24, Q("-150 deg")))
sketch1.addConstraint(Sketcher.Constraint("Angle", 30, Q("130 deg")))
sketch1.addConstraint(Sketcher.Constraint("Distance", 0, 1.0))
sketch1.addConstraint(Sketcher.Constraint("Distance", 30, 2.0))
sketch1.addConstraint(Sketcher.Constraint("Diameter", 69, 2.286))
sketch1.addConstraint(Sketcher.Constraint("DistanceX", 55, 1, 55, 2, 12.7))
sketch1.addConstraint(Sketcher.Constraint("DistanceY", 54, 2, 54, 1, 50.8))
sketch1.addConstraint(Sketcher.Constraint("Distance", 6, 5.5))
sketch1.addConstraint(Sketcher.Constraint("DistanceX", 2, 3, -1, 1, 33.51))
sketch1.addConstraint(Sketcher.Constraint("DistanceX", -1, 1, 69, 3, 6.731))
sketch1.addConstraint(Sketcher.Constraint("DistanceY", -1, 1, 4, 3, 49.574532))
sketch1.addConstraint(Sketcher.Constraint("DistanceY", -1, 1, 8, 3, 44.034911))
sketch1.addConstraint(Sketcher.Constraint("DistanceX", -1, 1, 27, 3, 62.903712))
sketch1.addConstraint(Sketcher.Constraint("DistanceY", -1, 1, 50, 3, 40.081232))
sketch1.addConstraint(Sketcher.Constraint("DistanceX", -1, 1, 51, 3, 47.33235))
sketch1.addConstraint(Sketcher.Constraint("DistanceX", -1, 1, 52, 3, 31.384508))
sketch1.addConstraint(Sketcher.Constraint("DistanceX", -1, 1, 53, 3, 19.709431))
sketch1.addConstraint(Sketcher.Constraint("DistanceY", 66, 3, -1, 1, 24.310551))
sketch1.addConstraint(Sketcher.Constraint("DistanceY", -1, 1, 51, 3, 27.327345))
sketch1.addConstraint(Sketcher.Constraint("DistanceY", -1, 1, 52, 3, 44.821723))
sketch1.addConstraint(Sketcher.Constraint("DistanceY", -1, 1, 53, 3, 34.896816))
sketch1.addConstraint(Sketcher.Constraint("DistanceX", -1, 1, 66, 3, 18.178953))
sketch1.addConstraint(Sketcher.Constraint("DistanceX", -1, 1, 68, 3, 35.134054))
sketch1.addConstraint(Sketcher.Constraint("DistanceY", 68, 3, -1, 1, 41.871135))
sketch1.addConstraint(Sketcher.Constraint("DistanceY", 71, 3, -1, 1, 53.061188))
sketch1.addConstraint(Sketcher.Constraint("DistanceX", -1, 1, 54, 2, 54.814124))
pad1 = body.newObject("PartDesign::Pad", "Pad")
pad1.Profile = sketch1
pad1.Length = 3.175
pad1.Reversed = True

doc.recompute()
